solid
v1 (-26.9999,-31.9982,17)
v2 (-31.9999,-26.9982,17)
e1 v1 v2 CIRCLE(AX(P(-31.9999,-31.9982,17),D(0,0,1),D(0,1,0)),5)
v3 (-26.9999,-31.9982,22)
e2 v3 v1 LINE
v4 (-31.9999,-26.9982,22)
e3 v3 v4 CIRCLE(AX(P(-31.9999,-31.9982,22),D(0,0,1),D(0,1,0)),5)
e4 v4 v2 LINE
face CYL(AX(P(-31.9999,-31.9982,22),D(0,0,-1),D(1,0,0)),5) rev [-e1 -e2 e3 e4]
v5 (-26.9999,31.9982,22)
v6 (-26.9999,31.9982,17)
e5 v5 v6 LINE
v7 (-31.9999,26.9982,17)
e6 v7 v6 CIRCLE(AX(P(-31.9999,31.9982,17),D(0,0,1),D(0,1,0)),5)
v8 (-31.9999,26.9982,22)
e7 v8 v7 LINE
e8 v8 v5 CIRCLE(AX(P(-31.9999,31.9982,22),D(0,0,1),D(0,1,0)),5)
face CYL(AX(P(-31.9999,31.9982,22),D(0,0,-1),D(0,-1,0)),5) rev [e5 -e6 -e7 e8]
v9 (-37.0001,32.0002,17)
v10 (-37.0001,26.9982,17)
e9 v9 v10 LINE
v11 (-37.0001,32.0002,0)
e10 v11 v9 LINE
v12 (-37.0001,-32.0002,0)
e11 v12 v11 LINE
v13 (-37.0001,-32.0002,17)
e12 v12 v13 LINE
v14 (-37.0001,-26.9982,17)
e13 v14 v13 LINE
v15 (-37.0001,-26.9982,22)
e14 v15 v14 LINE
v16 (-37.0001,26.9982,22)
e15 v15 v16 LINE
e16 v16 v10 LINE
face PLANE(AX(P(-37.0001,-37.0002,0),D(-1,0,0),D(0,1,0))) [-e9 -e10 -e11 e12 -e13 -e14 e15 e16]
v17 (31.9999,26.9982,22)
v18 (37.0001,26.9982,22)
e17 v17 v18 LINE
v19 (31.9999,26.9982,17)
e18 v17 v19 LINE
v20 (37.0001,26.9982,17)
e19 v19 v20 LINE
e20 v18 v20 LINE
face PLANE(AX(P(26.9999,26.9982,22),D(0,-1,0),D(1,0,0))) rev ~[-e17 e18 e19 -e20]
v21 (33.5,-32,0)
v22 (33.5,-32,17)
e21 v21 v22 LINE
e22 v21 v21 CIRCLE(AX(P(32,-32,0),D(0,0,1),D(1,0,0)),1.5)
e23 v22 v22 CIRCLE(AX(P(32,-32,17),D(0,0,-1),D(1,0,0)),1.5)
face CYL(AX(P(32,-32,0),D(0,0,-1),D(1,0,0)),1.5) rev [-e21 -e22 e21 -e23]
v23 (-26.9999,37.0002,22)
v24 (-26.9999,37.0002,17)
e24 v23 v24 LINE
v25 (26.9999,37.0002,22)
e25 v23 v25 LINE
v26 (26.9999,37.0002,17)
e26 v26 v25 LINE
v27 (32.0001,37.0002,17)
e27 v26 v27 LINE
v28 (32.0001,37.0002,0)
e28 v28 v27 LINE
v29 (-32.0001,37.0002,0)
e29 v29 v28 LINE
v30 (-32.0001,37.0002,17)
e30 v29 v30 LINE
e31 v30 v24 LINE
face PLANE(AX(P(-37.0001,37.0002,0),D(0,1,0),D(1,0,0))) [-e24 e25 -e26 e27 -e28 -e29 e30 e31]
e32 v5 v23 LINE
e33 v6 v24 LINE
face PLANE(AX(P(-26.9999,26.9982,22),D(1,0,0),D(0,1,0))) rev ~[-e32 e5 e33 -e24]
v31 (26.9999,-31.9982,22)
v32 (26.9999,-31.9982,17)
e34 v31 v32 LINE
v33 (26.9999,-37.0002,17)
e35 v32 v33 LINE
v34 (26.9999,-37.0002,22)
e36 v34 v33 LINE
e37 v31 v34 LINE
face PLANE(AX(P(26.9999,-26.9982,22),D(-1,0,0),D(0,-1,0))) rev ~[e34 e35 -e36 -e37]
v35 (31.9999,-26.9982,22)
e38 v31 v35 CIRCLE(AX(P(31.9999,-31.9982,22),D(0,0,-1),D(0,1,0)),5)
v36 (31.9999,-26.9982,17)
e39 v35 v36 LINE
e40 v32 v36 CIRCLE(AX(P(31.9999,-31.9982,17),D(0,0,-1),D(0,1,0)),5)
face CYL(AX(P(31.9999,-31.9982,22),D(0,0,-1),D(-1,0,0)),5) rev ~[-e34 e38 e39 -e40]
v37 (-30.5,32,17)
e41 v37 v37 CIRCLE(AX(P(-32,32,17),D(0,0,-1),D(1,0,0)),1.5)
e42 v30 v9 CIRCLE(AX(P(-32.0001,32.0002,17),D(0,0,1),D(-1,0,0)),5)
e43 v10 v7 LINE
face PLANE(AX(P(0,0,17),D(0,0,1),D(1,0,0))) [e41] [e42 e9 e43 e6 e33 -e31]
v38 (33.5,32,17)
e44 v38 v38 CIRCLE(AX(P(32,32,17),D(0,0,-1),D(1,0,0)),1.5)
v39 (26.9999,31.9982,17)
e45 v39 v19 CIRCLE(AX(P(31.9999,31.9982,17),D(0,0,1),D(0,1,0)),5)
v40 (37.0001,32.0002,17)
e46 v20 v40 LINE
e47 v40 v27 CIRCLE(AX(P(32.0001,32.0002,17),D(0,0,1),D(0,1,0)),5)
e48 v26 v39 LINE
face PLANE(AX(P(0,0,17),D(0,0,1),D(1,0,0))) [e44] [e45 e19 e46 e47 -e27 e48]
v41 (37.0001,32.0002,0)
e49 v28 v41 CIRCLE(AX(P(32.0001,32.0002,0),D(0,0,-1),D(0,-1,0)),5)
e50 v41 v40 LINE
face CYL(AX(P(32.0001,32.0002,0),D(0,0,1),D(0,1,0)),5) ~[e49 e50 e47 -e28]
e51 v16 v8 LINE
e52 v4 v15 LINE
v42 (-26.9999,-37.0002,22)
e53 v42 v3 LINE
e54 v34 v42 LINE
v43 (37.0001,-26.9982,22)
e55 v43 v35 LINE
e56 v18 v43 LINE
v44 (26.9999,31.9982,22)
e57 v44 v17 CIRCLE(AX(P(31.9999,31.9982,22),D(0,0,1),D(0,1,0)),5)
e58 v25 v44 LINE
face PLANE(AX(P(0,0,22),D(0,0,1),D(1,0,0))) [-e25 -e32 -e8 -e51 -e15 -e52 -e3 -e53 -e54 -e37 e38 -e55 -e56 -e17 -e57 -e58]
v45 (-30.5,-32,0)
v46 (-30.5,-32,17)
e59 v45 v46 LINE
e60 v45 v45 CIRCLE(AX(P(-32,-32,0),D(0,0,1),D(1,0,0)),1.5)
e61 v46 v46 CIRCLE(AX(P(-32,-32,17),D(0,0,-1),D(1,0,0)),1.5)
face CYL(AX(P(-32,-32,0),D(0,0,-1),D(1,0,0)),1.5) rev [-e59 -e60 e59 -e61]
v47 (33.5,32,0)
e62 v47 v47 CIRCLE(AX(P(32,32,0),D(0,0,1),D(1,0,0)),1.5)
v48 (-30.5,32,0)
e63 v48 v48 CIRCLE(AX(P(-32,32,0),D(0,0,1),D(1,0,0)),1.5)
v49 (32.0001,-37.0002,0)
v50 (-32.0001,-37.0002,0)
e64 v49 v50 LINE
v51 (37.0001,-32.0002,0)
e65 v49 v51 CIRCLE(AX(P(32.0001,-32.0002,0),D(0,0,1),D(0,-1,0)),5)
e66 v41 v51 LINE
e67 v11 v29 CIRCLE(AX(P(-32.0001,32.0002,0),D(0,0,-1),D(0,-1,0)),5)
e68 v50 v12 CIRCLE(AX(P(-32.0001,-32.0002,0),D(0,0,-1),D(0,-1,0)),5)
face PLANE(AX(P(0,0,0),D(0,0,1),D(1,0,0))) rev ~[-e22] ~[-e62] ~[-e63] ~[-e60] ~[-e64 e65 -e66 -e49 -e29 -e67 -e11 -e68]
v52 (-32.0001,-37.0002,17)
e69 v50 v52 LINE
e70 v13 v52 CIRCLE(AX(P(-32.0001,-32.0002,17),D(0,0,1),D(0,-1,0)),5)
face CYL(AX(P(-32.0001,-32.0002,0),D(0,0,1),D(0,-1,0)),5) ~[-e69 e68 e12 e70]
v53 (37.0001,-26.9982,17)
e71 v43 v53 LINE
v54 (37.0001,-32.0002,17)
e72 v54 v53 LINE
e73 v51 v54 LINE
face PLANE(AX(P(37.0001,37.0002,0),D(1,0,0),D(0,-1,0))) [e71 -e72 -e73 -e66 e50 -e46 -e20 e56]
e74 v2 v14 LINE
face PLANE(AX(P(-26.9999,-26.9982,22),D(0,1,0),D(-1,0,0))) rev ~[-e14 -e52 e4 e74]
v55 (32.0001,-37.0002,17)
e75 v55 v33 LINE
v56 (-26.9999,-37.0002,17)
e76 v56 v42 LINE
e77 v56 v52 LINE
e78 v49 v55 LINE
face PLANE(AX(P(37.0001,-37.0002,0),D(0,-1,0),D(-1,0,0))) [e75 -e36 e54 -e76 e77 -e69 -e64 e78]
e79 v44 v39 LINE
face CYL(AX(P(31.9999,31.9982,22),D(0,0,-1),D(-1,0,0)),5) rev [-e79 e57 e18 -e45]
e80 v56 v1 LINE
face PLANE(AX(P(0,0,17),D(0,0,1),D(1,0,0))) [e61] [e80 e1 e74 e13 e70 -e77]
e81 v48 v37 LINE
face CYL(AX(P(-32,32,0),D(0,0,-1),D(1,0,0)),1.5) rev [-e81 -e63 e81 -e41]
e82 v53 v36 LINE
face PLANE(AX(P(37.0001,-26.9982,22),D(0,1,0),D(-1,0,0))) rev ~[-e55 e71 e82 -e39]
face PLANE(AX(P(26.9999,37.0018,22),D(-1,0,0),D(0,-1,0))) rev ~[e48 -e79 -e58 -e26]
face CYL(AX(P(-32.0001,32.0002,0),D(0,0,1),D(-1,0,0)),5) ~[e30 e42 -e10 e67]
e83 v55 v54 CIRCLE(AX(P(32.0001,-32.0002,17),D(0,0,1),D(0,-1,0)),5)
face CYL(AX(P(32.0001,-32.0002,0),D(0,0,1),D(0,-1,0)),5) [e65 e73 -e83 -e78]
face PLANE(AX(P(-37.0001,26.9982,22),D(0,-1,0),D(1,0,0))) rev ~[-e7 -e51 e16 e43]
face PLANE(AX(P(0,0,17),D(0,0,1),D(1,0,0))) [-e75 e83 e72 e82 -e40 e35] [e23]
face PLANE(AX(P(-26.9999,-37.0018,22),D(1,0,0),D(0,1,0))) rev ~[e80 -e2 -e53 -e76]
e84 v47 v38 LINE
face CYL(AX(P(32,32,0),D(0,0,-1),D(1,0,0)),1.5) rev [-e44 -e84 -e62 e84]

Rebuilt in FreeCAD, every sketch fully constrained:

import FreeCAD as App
import Part
import Sketcher

V = App.Vector
Q = App.Units.Quantity


def edges_at(feature, points):
    """Names of the edges that pass closest to the given points."""
    edges = feature.Shape.Edges
    near = lambda p: min(range(len(edges)), key=lambda i: edges[i].distToShape(Part.Vertex(*p))[0])
    return sorted({f"Edge{near(p) + 1}" for p in points})

doc = App.newDocument("Part")
body = doc.addObject("PartDesign::Body", "Body")

sketch1 = body.newObject("Sketcher::SketchObject", "Sketch")
sketch1.AttachmentSupport = (doc.getObject("XY_Plane"), [""])
sketch1.MapMode = "FlatFace"
sketch1.addGeometry(Part.LineSegment(V(-37, -37, 0), V(37, -37, 0)), False)
sketch1.addGeometry(Part.LineSegment(V(37, -37, 0), V(37, 37, 0)), False)
sketch1.addGeometry(Part.LineSegment(V(37, 37, 0), V(-37, 37, 0)), False)
sketch1.addGeometry(Part.LineSegment(V(-37, 37, 0), V(-37, -37, 0)), False)
sketch1.addGeometry(Part.Circle(V(-32, -32, 0), V(0, 0, 1), 1.5), False)
sketch1.addGeometry(Part.Circle(V(32, -32, 0), V(0, 0, 1), 1.5), False)
sketch1.addGeometry(Part.Circle(V(-32, 32, 0), V(0, 0, 1), 1.5), False)
sketch1.addGeometry(Part.Circle(V(32, 32, 0), V(0, 0, 1), 1.5), False)
sketch1.addConstraint(Sketcher.Constraint("Coincident", 0, 2, 1, 1))
sketch1.addConstraint(Sketcher.Constraint("Coincident", 1, 2, 2, 1))
sketch1.addConstraint(Sketcher.Constraint("Coincident", 2, 2, 3, 1))
sketch1.addConstraint(Sketcher.Constraint("Coincident", 3, 2, 0, 1))
sketch1.addConstraint(Sketcher.Constraint("Horizontal", 0))
sketch1.addConstraint(Sketcher.Constraint("Vertical", 1))
sketch1.addConstraint(Sketcher.Constraint("Horizontal", 2))
sketch1.addConstraint(Sketcher.Constraint("Vertical", 3))
sketch1.addConstraint(Sketcher.Constraint("Equal", 4, 5))
sketch1.addConstraint(Sketcher.Constraint("Equal", 5, 6))
sketch1.addConstraint(Sketcher.Constraint("Equal", 6, 7))
sketch1.addConstraint(Sketcher.Constraint("Symmetric", 5, 3, 6, 3, -1, 1))
sketch1.addConstraint(Sketcher.Constraint("Symmetric", 4, 3, 7, 3, -1, 1))
sketch1.addConstraint(Sketcher.Constraint("Symmetric", 0, 2, 2, 2, -1, 1))
sketch1.addConstraint(Sketcher.Constraint("Symmetric", 4, 3, 5, 3, -2))
sketch1.addConstraint(Sketcher.Constraint("Equal", 2, 1))
sketch1.addConstraint(Sketcher.Constraint("Diameter", 4, Q("3 mm")))
sketch1.addConstraint(Sketcher.Constraint("DistanceX", 4, 3, -1, 1, Q("32 mm")))
sketch1.addConstraint(Sketcher.Constraint("DistanceY", 4, 3, -1, 1, Q("32 mm")))
sketch1.addConstraint(Sketcher.Constraint("DistanceX", -1, 1, 0, 2, Q("37 mm")))
pad1 = body.newObject("PartDesign::Pad", "Pad")
pad1.Profile = sketch1
pad1.Length = 22
doc.recompute()

fillet = body.newObject("PartDesign::Fillet", "Fillet")
fillet.Base = (pad1, edges_at(pad1, [
    (-37, 37, 11),
    (37, 37, 11),
    (37, -37, 11),
    (-37, -37, 11),
]))
fillet.Radius = 5

sketch2 = body.newObject("Sketcher::SketchObject", "Sketch001")
sketch2.AttachmentSupport = (doc.getObject("XY_Plane"), [""])
sketch2.MapMode = "FlatFace"
sketch2.AttachmentOffset = App.Placement(V(0, 0, 22), App.Rotation())
sketch2.addGeometry(Part.LineSegment(V(-37, 37, 0), V(-37, 27, 0)), False)
sketch2.addGeometry(Part.LineSegment(V(-37, 27, 0), V(-27, 27, 0)), False)
sketch2.addGeometry(Part.LineSegment(V(-27, 27, 0), V(-27, 37, 0)), False)
sketch2.addGeometry(Part.LineSegment(V(-27, 37, 0), V(-37, 37, 0)), False)
sketch2.addGeometry(Part.LineSegment(V(-27, -27, 0), V(-37, -27, 0)), False)
sketch2.addGeometry(Part.LineSegment(V(-37, -27, 0), V(-37, -37, 0)), False)
sketch2.addGeometry(Part.LineSegment(V(-37, -37, 0), V(-27, -37, 0)), False)
sketch2.addGeometry(Part.LineSegment(V(-27, -37, 0), V(-27, -27, 0)), False)
sketch2.addGeometry(Part.LineSegment(V(37, 27, 0), V(37, 37, 0)), False)
sketch2.addGeometry(Part.LineSegment(V(37, 37, 0), V(27, 37, 0)), False)
sketch2.addGeometry(Part.LineSegment(V(27, 37, 0), V(27, 27, 0)), False)
sketch2.addGeometry(Part.LineSegment(V(27, 27, 0), V(37, 27, 0)), False)
sketch2.addGeometry(Part.LineSegment(V(27, -37, 0), V(37, -37, 0)), False)
sketch2.addGeometry(Part.LineSegment(V(37, -37, 0), V(37, -27, 0)), False)
sketch2.addGeometry(Part.LineSegment(V(37, -27, 0), V(27, -27, 0)), False)
sketch2.addGeometry(Part.LineSegment(V(27, -27, 0), V(27, -37, 0)), False)
sketch2.addConstraint(Sketcher.Constraint("Coincident", 0, 2, 1, 1))
sketch2.addConstraint(Sketcher.Constraint("Coincident", 1, 2, 2, 1))
sketch2.addConstraint(Sketcher.Constraint("Coincident", 2, 2, 3, 1))
sketch2.addConstraint(Sketcher.Constraint("Coincident", 3, 2, 0, 1))
sketch2.addConstraint(Sketcher.Constraint("Coincident", 4, 2, 5, 1))
sketch2.addConstraint(Sketcher.Constraint("Coincident", 5, 2, 6, 1))
sketch2.addConstraint(Sketcher.Constraint("Coincident", 6, 2, 7, 1))
sketch2.addConstraint(Sketcher.Constraint("Coincident", 7, 2, 4, 1))
sketch2.addConstraint(Sketcher.Constraint("Coincident", 8, 2, 9, 1))
sketch2.addConstraint(Sketcher.Constraint("Coincident", 9, 2, 10, 1))
sketch2.addConstraint(Sketcher.Constraint("Coincident", 10, 2, 11, 1))
sketch2.addConstraint(Sketcher.Constraint("Coincident", 11, 2, 8, 1))
sketch2.addConstraint(Sketcher.Constraint("Coincident", 12, 2, 13, 1))
sketch2.addConstraint(Sketcher.Constraint("Coincident", 13, 2, 14, 1))
sketch2.addConstraint(Sketcher.Constraint("Coincident", 14, 2, 15, 1))
sketch2.addConstraint(Sketcher.Constraint("Coincident", 15, 2, 12, 1))
sketch2.addConstraint(Sketcher.Constraint("Vertical", 0))
sketch2.addConstraint(Sketcher.Constraint("Horizontal", 1))
sketch2.addConstraint(Sketcher.Constraint("Vertical", 2))
sketch2.addConstraint(Sketcher.Constraint("Horizontal", 3))
sketch2.addConstraint(Sketcher.Constraint("Horizontal", 4))
sketch2.addConstraint(Sketcher.Constraint("Vertical", 5))
sketch2.addConstraint(Sketcher.Constraint("Horizontal", 6))
sketch2.addConstraint(Sketcher.Constraint("Vertical", 7))
sketch2.addConstraint(Sketcher.Constraint("Vertical", 8))
sketch2.addConstraint(Sketcher.Constraint("Horizontal", 9))
sketch2.addConstraint(Sketcher.Constraint("Vertical", 10))
sketch2.addConstraint(Sketcher.Constraint("Horizontal", 11))
sketch2.addConstraint(Sketcher.Constraint("Horizontal", 12))
sketch2.addConstraint(Sketcher.Constraint("Vertical", 13))
sketch2.addConstraint(Sketcher.Constraint("Horizontal", 14))
sketch2.addConstraint(Sketcher.Constraint("Vertical", 15))
sketch2.addConstraint(Sketcher.Constraint("Symmetric", 5, 2, 8, 2, -1, 1))
sketch2.addConstraint(Sketcher.Constraint("Symmetric", 7, 2, 10, 2, -1, 1))
sketch2.addConstraint(Sketcher.Constraint("Symmetric", 3, 2, 12, 2, -1, 1))
sketch2.addConstraint(Sketcher.Constraint("Symmetric", 1, 2, 14, 2, -1, 1))
sketch2.addConstraint(Sketcher.Constraint("Symmetric", 3, 2, 8, 2, -2))
sketch2.addConstraint(Sketcher.Constraint("Symmetric", 1, 2, 10, 2, -2))
sketch2.addConstraint(Sketcher.Constraint("DistanceX", 0, 2, -1, 1, Q("37 mm")))
sketch2.addConstraint(Sketcher.Constraint("DistanceX", 1, 2, -1, 1, Q("27 mm")))
sketch2.addConstraint(Sketcher.Constraint("DistanceY", 4, 2, 3, 2, Q("64 mm")))
sketch2.addConstraint(Sketcher.Constraint("DistanceY", 0, 2, 0, 1, Q("10.0036 mm")))
pocket1 = body.newObject("PartDesign::Pocket", "Pocket")
pocket1.Profile = sketch2
pocket1.Length = 5
doc.recompute()

fillet2 = body.newObject("PartDesign::Fillet", "Fillet001")
fillet2.Base = (pocket1, edges_at(pocket1, [
    (-27, 26.998, 19.5),
    (27, 26.998, 19.5),
    (-27, -26.998, 19.5),
    (27, -26.998, 19.5),
]))
fillet2.Radius = 5

doc.recompute()
